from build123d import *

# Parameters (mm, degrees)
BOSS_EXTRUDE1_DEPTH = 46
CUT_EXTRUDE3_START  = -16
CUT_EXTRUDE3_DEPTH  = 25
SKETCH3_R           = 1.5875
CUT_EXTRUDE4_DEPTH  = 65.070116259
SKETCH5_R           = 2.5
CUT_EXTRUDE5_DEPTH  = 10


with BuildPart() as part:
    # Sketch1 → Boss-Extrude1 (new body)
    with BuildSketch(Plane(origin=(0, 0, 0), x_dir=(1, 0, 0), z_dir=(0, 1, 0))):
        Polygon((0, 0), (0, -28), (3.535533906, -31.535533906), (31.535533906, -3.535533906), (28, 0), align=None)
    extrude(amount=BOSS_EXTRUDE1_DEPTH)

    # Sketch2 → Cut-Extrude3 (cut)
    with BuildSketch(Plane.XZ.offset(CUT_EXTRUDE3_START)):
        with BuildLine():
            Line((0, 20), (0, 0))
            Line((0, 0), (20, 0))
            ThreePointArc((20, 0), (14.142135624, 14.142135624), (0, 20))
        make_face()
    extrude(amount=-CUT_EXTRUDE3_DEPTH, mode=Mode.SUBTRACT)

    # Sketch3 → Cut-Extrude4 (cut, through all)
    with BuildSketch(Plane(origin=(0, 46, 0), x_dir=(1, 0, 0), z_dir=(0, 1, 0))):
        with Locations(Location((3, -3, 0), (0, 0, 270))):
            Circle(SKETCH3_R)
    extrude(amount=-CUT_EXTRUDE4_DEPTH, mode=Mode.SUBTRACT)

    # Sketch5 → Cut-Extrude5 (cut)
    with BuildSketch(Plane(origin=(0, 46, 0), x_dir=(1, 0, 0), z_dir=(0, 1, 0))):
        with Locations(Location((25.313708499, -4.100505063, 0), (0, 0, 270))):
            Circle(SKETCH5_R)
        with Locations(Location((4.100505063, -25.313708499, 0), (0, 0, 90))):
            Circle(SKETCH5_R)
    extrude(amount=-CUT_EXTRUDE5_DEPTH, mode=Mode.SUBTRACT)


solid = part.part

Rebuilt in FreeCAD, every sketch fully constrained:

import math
import FreeCAD as App
import Part
import Sketcher


def add_polygon(sketch, points):
    """Adds a closed chain of lines whose ends are joined by coincident constraints."""
    first, n = sketch.GeometryCount, len(points)
    for a, b in zip(points, points[1:] + points[:1]):
        sketch.addGeometry(Part.LineSegment(App.Vector(*a, 0), App.Vector(*b, 0)), False)
    for i in range(n):
        sketch.addConstraint(Sketcher.Constraint("Coincident", first + i, 2, first + (i + 1) % n, 1))

doc = App.newDocument("Part")
body = doc.addObject("PartDesign::Body", "Body")

# Sketch on XZ plane
sketch1 = body.newObject("Sketcher::SketchObject", "Sketch")
sketch1.AttachmentSupport = (doc.getObject("XZ_Plane"), [""])
sketch1.MapMode = "FlatFace"
add_polygon(sketch1, [(0, 0), (0, 28), (4, 32), (32, 4), (28, 0)])  # lines 0-4
sketch1.addConstraint([
    Sketcher.Constraint("Vertical", 0),
    Sketcher.Constraint("Horizontal", 4),
    Sketcher.Constraint("Coincident", 4, 2, -1, 1),
    Sketcher.Constraint("Perpendicular", 1, 2),
    Sketcher.Constraint("Perpendicular", 2, 3),
    Sketcher.Constraint("Equal", 4, 0),
    Sketcher.Constraint("Equal", 1, 3),
    Sketcher.Constraint("DistanceX", 4, 2, 4, 1, 28.0),
    Sketcher.Constraint("Distance", 1, 5.0),
])
pad1 = body.newObject("PartDesign::Pad", "Pad")
pad1.Profile = sketch1
pad1.Length = 46
pad1.Reversed = True

# Sketch on XZ plane
sketch2 = body.newObject("Sketcher::SketchObject", "Sketch001")
sketch2.AttachmentSupport = (doc.getObject("XZ_Plane"), [""])
sketch2.MapMode = "FlatFace"
sketch2.AttachmentOffset = App.Placement(App.Vector(0, 0, -16), App.Rotation())
sketch2.addGeometry([
    Part.LineSegment(App.Vector(0, 20, 0), App.Vector(0, 0, 0)),
    Part.LineSegment(App.Vector(0, 0, 0), App.Vector(20, 0, 0)),
    Part.ArcOfCircle(Part.Circle(App.Vector(0, 0, 0), App.Vector(0, 0, 1), 20), math.radians(0), math.radians(90)),
], False)
sketch2.addConstraint([
    Sketcher.Constraint("Coincident", 0, 2, 1, 1),
    Sketcher.Constraint("Coincident", 1, 2, 2, 1),
    Sketcher.Constraint("Coincident", 2, 2, 0, 1),
    Sketcher.Constraint("Vertical", 0),
    Sketcher.Constraint("Horizontal", 1),
    Sketcher.Constraint("Coincident", 2, 3, -1, 1),
    Sketcher.Constraint("Coincident", 0, 2, -1, 1),
    Sketcher.Constraint("Radius", 2, 20.0),
])
pocket1 = body.newObject("PartDesign::Pocket", "Pocket")
pocket1.Profile = sketch2
pocket1.Length = 25

# Sketch on XZ plane
sketch3 = body.newObject("Sketcher::SketchObject", "Sketch002")
sketch3.AttachmentSupport = (doc.getObject("XZ_Plane"), [""])
sketch3.MapMode = "FlatFace"
sketch3.AttachmentOffset = App.Placement(App.Vector(0, 0, -46), App.Rotation())
sketch3.addGeometry(Part.Circle(App.Vector(3, 3, 0), App.Vector(0, 0, 1), 1.6), False)
sketch3.addConstraint([
    Sketcher.Constraint("Diameter", 0, 3.175),
    Sketcher.Constraint("DistanceX", -1, 1, 0, 3, 3.0),
    Sketcher.Constraint("DistanceY", -1, 1, 0, 3, 3.0),
])
pocket2 = body.newObject("PartDesign::Pocket", "Pocket001")
pocket2.Profile = sketch3
pocket2.Type = "ThroughAll"
pocket2.Reversed = True

# Sketch on XZ plane
sketch4 = body.newObject("Sketcher::SketchObject", "Sketch003")
sketch4.AttachmentSupport = (doc.getObject("XZ_Plane"), [""])
sketch4.MapMode = "FlatFace"
sketch4.AttachmentOffset = App.Placement(App.Vector(0, 0, -46), App.Rotation())
sketch4.addGeometry([
    Part.Circle(App.Vector(25.3, 4.1, 0), App.Vector(0, 0, 1), 2.5),
    Part.Circle(App.Vector(4.1, 25.3, 0), App.Vector(0, 0, 1), 2.5),
], False)
sketch4.addConstraint([
    Sketcher.Constraint("Equal", 0, 1),
    Sketcher.Constraint("Diameter", 0, 5.0),
    Sketcher.Constraint("DistanceX", -1, 1, 0, 3, 25.313708),
    Sketcher.Constraint("DistanceY", -1, 1, 1, 3, 25.313708),
    Sketcher.Constraint("DistanceY", -1, 1, 0, 3, 4.100505),
    Sketcher.Constraint("DistanceX", -1, 1, 1, 3, 4.100505),
])
pocket3 = body.newObject("PartDesign::Pocket", "Pocket002")
pocket3.Profile = sketch4
pocket3.Length = 10
pocket3.Reversed = True

doc.recompute()
